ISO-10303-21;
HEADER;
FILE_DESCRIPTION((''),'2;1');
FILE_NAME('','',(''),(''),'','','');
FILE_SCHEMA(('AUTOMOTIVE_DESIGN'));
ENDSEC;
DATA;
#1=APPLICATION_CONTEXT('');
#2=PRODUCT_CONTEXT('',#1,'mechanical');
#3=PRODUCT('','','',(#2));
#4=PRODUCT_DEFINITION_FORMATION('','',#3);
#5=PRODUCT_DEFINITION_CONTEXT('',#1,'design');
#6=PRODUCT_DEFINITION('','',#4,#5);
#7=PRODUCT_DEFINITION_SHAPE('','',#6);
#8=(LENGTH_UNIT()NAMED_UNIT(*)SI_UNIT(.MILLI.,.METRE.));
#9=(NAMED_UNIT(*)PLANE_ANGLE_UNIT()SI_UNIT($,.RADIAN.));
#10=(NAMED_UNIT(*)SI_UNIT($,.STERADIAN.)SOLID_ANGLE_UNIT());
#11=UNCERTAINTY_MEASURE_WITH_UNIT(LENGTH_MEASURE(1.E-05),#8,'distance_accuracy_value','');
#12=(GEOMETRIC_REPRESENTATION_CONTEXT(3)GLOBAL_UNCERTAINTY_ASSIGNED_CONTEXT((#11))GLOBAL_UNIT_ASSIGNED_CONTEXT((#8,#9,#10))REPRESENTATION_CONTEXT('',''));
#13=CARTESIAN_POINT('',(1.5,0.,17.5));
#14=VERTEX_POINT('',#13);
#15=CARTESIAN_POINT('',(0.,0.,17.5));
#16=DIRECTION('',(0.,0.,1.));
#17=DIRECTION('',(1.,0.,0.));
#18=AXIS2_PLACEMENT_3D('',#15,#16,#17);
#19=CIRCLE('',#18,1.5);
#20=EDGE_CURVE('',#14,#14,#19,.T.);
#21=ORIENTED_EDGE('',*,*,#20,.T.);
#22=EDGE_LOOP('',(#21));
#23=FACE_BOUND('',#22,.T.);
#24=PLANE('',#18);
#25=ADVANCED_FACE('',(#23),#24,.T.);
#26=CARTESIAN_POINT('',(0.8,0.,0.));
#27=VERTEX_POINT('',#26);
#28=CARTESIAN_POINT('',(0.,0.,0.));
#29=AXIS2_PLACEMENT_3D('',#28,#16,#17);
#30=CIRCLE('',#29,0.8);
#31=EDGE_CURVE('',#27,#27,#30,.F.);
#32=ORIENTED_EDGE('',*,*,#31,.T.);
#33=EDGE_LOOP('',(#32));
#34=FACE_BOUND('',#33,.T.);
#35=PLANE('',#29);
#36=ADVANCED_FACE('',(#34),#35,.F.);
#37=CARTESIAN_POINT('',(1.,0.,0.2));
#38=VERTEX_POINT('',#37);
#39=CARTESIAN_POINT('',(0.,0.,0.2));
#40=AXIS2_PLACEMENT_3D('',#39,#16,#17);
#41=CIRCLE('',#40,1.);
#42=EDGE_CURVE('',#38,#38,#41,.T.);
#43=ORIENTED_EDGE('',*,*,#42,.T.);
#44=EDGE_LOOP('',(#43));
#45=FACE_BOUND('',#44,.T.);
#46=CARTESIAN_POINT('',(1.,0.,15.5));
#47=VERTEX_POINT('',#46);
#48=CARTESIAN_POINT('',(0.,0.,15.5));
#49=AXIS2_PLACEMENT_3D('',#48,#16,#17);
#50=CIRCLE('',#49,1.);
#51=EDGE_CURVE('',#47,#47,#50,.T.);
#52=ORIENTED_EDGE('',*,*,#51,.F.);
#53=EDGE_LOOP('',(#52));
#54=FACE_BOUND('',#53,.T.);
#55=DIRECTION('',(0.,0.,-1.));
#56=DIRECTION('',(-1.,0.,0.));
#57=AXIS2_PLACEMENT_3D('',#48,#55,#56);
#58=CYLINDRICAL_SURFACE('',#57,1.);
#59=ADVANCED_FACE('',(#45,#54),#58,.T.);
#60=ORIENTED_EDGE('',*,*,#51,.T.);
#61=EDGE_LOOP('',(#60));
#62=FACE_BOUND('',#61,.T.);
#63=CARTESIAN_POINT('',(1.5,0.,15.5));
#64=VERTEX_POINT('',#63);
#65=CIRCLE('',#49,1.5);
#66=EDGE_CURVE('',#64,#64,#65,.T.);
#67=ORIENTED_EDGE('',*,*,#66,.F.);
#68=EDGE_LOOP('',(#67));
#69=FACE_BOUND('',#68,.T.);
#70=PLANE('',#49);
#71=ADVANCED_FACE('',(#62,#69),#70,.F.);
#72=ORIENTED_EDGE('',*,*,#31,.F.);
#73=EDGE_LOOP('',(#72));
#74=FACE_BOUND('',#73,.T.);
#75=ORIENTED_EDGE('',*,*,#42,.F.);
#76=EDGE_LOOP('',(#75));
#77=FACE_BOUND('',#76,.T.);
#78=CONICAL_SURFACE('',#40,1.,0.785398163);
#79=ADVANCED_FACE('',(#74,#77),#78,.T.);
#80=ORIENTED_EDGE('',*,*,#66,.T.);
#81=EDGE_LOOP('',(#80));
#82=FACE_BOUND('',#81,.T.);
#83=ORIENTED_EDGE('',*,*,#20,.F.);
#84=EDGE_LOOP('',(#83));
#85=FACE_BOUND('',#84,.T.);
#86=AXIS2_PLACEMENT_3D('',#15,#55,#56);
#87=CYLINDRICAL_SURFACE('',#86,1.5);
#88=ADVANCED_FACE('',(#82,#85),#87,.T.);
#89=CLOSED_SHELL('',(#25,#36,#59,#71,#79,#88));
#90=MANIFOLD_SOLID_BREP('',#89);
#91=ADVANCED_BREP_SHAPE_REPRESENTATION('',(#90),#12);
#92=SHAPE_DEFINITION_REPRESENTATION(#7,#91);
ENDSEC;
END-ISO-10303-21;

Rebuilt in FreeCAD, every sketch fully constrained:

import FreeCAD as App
import Part
import Sketcher


def edges_at(feature, points):
    """Names of the edges that pass closest to the given points."""
    edges = feature.Shape.Edges
    near = lambda p: min(range(len(edges)), key=lambda i: edges[i].distToShape(Part.Vertex(*p))[0])
    return sorted({f"Edge{near(p) + 1}" for p in points})

doc = App.newDocument("Part")
params = doc.addObject("Spreadsheet::Sheet", "Params")
for row, (alias, value) in enumerate([
    ("sketch1_diameter", "2 mm"),
    ("pad1_length", "15.5 mm"),
    ("sketch2_diameter", "3 mm"),
    ("pad2_length", "2 mm"),
    ("chamfer_size", "0.2 mm"),
], start=1):
    params.set(f"A{row}", alias)
    params.set(f"B{row}", "=" + value)
    params.setAlias(f"B{row}", alias)

body = doc.addObject("PartDesign::Body", "Body")

sketch1 = body.newObject("Sketcher::SketchObject", "Sketch")
sketch1.AttachmentSupport = (doc.getObject("XY_Plane"), [""])
sketch1.MapMode = "FlatFace"
sketch1.addGeometry(Part.Circle(App.Vector(0, 0, 0), App.Vector(0, 0, 1), 1), False)
sketch1.addConstraint(Sketcher.Constraint("Coincident", 0, 3, -1, 1))
sketch1.addConstraint(Sketcher.Constraint("Diameter", 0, 2.0))
sketch1.setExpression("Constraints[1]", "Params.sketch1_diameter")
pad1 = body.newObject("PartDesign::Pad", "Pad")
pad1.Profile = sketch1
pad1.setExpression("Length", "Params.pad1_length")

sketch2 = body.newObject("Sketcher::SketchObject", "Sketch001")
sketch2.AttachmentSupport = (doc.getObject("XY_Plane"), [""])
sketch2.MapMode = "FlatFace"
sketch2.AttachmentOffset = App.Placement(App.Vector(0, 0, 15.5), App.Rotation())
sketch2.addGeometry(Part.Circle(App.Vector(0, 0, 0), App.Vector(0, 0, 1), 1.5), False)
sketch2.addConstraint(Sketcher.Constraint("Coincident", 0, 3, -1, 1))
sketch2.addConstraint(Sketcher.Constraint("Diameter", 0, 3.0))
sketch2.setExpression("Constraints[1]", "Params.sketch2_diameter")
pad2 = body.newObject("PartDesign::Pad", "Pad001")
pad2.Profile = sketch2
pad2.setExpression("Length", "Params.pad2_length")
doc.recompute()

chamfer = body.newObject("PartDesign::Chamfer", "Chamfer")
chamfer.Base = (pad2, edges_at(pad2, [(-1, 0, 0)]))
chamfer.setExpression("Size", "Params.chamfer_size")

doc.recompute()
